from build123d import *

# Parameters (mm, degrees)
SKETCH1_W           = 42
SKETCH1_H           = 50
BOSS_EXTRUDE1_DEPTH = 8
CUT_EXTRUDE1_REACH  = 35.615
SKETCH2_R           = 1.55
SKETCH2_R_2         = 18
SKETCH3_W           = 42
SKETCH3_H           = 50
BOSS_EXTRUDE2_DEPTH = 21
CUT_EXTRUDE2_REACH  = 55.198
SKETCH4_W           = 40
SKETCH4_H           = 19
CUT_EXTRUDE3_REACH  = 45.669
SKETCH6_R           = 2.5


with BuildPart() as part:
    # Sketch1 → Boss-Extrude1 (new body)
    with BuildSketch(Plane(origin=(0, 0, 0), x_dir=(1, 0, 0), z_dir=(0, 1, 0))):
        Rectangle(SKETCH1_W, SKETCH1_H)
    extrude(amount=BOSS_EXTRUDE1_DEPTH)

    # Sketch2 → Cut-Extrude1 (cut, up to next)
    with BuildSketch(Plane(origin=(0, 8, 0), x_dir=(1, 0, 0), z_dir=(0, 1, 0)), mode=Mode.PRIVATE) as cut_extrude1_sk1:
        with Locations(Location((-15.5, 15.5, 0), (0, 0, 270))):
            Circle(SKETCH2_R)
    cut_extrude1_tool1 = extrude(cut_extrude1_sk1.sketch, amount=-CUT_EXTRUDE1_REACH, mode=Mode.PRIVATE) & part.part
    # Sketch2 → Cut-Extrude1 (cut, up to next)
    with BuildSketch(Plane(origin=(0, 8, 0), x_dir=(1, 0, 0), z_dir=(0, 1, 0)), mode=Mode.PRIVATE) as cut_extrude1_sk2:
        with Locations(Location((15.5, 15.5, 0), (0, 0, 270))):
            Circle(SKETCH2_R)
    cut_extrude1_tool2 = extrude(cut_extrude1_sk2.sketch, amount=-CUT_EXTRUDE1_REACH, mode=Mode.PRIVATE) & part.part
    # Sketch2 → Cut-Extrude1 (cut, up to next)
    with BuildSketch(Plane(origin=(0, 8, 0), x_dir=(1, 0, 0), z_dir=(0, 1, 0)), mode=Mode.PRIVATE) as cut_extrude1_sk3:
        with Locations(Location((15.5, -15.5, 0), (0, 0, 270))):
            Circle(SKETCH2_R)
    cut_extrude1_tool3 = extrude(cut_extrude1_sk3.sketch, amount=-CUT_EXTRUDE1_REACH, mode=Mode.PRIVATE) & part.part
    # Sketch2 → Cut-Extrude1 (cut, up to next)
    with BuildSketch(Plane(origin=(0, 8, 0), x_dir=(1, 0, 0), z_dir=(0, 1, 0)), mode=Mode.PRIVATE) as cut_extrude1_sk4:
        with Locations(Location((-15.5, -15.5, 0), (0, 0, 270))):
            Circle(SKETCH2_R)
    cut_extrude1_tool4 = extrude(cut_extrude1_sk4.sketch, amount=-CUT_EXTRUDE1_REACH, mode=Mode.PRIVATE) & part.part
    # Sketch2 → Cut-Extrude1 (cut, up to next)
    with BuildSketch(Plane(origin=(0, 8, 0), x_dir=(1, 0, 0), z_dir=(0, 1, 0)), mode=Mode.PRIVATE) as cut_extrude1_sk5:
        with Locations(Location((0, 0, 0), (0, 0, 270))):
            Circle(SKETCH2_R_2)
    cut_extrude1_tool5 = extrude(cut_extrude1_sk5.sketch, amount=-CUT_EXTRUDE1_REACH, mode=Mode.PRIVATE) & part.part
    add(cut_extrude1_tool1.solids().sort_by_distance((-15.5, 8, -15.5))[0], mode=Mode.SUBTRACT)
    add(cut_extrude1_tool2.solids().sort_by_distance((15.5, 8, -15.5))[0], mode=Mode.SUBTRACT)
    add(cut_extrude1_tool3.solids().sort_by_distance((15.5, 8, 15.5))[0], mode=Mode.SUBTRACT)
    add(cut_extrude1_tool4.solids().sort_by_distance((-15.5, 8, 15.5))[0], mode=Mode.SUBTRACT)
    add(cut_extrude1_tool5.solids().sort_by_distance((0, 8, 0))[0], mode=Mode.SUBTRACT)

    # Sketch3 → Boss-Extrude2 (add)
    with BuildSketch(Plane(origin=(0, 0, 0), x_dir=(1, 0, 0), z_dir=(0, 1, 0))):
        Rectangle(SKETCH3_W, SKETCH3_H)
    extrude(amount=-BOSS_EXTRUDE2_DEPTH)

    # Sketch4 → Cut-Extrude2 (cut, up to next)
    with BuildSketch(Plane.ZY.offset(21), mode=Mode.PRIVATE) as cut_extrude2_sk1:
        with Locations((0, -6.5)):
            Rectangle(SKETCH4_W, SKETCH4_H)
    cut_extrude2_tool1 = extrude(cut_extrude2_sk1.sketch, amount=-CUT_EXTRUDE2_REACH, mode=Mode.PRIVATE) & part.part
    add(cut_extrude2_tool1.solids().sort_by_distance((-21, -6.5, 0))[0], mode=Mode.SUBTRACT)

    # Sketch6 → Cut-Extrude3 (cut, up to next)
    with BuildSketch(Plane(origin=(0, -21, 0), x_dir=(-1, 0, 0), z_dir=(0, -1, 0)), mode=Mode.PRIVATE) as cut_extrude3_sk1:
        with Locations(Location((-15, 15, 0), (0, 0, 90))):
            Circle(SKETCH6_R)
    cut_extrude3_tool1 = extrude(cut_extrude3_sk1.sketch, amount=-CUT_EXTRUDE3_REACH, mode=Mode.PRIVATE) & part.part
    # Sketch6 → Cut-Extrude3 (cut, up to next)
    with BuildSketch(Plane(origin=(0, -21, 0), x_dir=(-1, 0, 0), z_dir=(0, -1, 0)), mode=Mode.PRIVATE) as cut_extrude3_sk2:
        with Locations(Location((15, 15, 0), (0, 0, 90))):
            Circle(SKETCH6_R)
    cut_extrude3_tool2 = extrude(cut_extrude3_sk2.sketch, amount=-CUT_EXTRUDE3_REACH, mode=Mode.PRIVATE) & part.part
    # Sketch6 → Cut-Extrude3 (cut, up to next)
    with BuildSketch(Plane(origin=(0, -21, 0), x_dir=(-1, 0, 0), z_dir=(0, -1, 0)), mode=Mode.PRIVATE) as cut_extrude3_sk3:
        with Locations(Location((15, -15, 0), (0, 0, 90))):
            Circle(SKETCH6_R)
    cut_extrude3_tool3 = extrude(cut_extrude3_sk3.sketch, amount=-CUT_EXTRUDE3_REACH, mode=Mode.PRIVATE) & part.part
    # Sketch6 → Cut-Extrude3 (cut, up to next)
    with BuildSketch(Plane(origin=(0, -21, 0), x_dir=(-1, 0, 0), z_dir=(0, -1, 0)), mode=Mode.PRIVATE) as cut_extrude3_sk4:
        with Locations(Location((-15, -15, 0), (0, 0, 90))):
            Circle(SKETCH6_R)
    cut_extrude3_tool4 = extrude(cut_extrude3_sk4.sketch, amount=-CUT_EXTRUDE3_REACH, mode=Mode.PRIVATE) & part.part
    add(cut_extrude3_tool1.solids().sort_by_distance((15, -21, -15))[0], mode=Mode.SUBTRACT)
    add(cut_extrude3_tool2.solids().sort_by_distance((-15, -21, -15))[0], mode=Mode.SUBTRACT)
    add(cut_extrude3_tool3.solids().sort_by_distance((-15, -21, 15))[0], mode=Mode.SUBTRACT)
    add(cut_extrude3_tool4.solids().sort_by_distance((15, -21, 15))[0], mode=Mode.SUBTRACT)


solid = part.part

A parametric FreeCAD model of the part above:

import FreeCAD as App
import Part
import Sketcher

V = App.Vector


def add_polygon(sketch, points):
    """Adds a closed chain of lines whose ends are joined by coincident constraints."""
    first, n = sketch.GeometryCount, len(points)
    for a, b in zip(points, points[1:] + points[:1]):
        sketch.addGeometry(Part.LineSegment(App.Vector(*a, 0), App.Vector(*b, 0)), False)
    for i in range(n):
        sketch.addConstraint(Sketcher.Constraint("Coincident", first + i, 2, first + (i + 1) % n, 1))

doc = App.newDocument("Part")
body = doc.addObject("PartDesign::Body", "Body")

# Sketch on XZ plane
sketch1 = body.newObject("Sketcher::SketchObject", "Sketch")
sketch1.AttachmentSupport = (doc.getObject("XZ_Plane"), [""])
sketch1.MapMode = "FlatFace"
add_polygon(sketch1, [(-21, -25), (-21, 25), (21, 25), (21, -25)])  # lines 0-3
sketch1.addConstraint(Sketcher.Constraint("Vertical", 0))
sketch1.addConstraint(Sketcher.Constraint("Horizontal", 1))
sketch1.addConstraint(Sketcher.Constraint("Vertical", 2))
sketch1.addConstraint(Sketcher.Constraint("Horizontal", 3))
sketch1.addConstraint(Sketcher.Constraint("Symmetric", 0, 2, 2, 2, -1, 1))
sketch1.addConstraint(Sketcher.Constraint("DistanceX", 1, 1, 1, 2, 42.0))
sketch1.addConstraint(Sketcher.Constraint("DistanceY", 0, 1, 0, 2, 50.0))
pad1 = body.newObject("PartDesign::Pad", "Pad")
pad1.Profile = sketch1
pad1.Length = 8
pad1.Reversed = True

# Sketch on XZ plane
sketch2 = body.newObject("Sketcher::SketchObject", "Sketch001")
sketch2.AttachmentSupport = (doc.getObject("XZ_Plane"), [""])
sketch2.MapMode = "FlatFace"
sketch2.AttachmentOffset = App.Placement(V(0, 0, -8), App.Rotation())
sketch2.addGeometry(Part.Circle(V(-15.5, -15.5, 0), V(0, 0, 1), 1.6), False)
sketch2.addConstraint(Sketcher.Constraint("Diameter", 0, 3.1))
sketch2.addConstraint(Sketcher.Constraint("DistanceX", 0, 3, -1, 1, 15.5))
sketch2.addConstraint(Sketcher.Constraint("DistanceY", 0, 3, -1, 1, 15.5))
pocket1 = body.newObject("PartDesign::Pocket", "Pocket")
pocket1.Profile = sketch2
pocket1.Type = "UpToFirst"
pocket1.Reversed = True

# Sketch on XZ plane
sketch3 = body.newObject("Sketcher::SketchObject", "Sketch002")
sketch3.AttachmentSupport = (doc.getObject("XZ_Plane"), [""])
sketch3.MapMode = "FlatFace"
sketch3.AttachmentOffset = App.Placement(V(0, 0, -8), App.Rotation())
sketch3.addGeometry(Part.Circle(V(15.5, -15.5, 0), V(0, 0, 1), 1.6), False)
sketch3.addConstraint(Sketcher.Constraint("Diameter", 0, 3.1))
sketch3.addConstraint(Sketcher.Constraint("DistanceX", -1, 1, 0, 3, 15.5))
sketch3.addConstraint(Sketcher.Constraint("DistanceY", 0, 3, -1, 1, 15.5))
pocket2 = body.newObject("PartDesign::Pocket", "Pocket001")
pocket2.Profile = sketch3
pocket2.Type = "UpToFirst"
pocket2.Reversed = True

# Sketch on XZ plane
sketch4 = body.newObject("Sketcher::SketchObject", "Sketch003")
sketch4.AttachmentSupport = (doc.getObject("XZ_Plane"), [""])
sketch4.MapMode = "FlatFace"
sketch4.AttachmentOffset = App.Placement(V(0, 0, -8), App.Rotation())
sketch4.addGeometry(Part.Circle(V(15.5, 15.5, 0), V(0, 0, 1), 1.6), False)
sketch4.addConstraint(Sketcher.Constraint("Diameter", 0, 3.1))
sketch4.addConstraint(Sketcher.Constraint("DistanceX", -1, 1, 0, 3, 15.5))
sketch4.addConstraint(Sketcher.Constraint("DistanceY", -1, 1, 0, 3, 15.5))
pocket3 = body.newObject("PartDesign::Pocket", "Pocket002")
pocket3.Profile = sketch4
pocket3.Type = "UpToFirst"
pocket3.Reversed = True

# Sketch on XZ plane
sketch5 = body.newObject("Sketcher::SketchObject", "Sketch004")
sketch5.AttachmentSupport = (doc.getObject("XZ_Plane"), [""])
sketch5.MapMode = "FlatFace"
sketch5.AttachmentOffset = App.Placement(V(0, 0, -8), App.Rotation())
sketch5.addGeometry(Part.Circle(V(-15.5, 15.5, 0), V(0, 0, 1), 1.6), False)
sketch5.addConstraint(Sketcher.Constraint("Diameter", 0, 3.1))
sketch5.addConstraint(Sketcher.Constraint("DistanceX", 0, 3, -1, 1, 15.5))
sketch5.addConstraint(Sketcher.Constraint("DistanceY", -1, 1, 0, 3, 15.5))
pocket4 = body.newObject("PartDesign::Pocket", "Pocket003")
pocket4.Profile = sketch5
pocket4.Type = "UpToFirst"
pocket4.Reversed = True

# Sketch on XZ plane
sketch6 = body.newObject("Sketcher::SketchObject", "Sketch005")
sketch6.AttachmentSupport = (doc.getObject("XZ_Plane"), [""])
sketch6.MapMode = "FlatFace"
sketch6.AttachmentOffset = App.Placement(V(0, 0, -8), App.Rotation())
sketch6.addGeometry(Part.Circle(V(0, 0, 0), V(0, 0, 1), 18), False)
sketch6.addConstraint(Sketcher.Constraint("Coincident", 0, 3, -1, 1))
sketch6.addConstraint(Sketcher.Constraint("Diameter", 0, 36.0))
pocket5 = body.newObject("PartDesign::Pocket", "Pocket004")
pocket5.Profile = sketch6
pocket5.Type = "UpToFirst"
pocket5.Reversed = True

# Sketch on XZ plane
sketch7 = body.newObject("Sketcher::SketchObject", "Sketch006")
sketch7.AttachmentSupport = (doc.getObject("XZ_Plane"), [""])
sketch7.MapMode = "FlatFace"
add_polygon(sketch7, [(-21, -25), (-21, 25), (21, 25), (21, -25)])  # lines 0-3
sketch7.addConstraint(Sketcher.Constraint("Vertical", 0))
sketch7.addConstraint(Sketcher.Constraint("Horizontal", 1))
sketch7.addConstraint(Sketcher.Constraint("Vertical", 2))
sketch7.addConstraint(Sketcher.Constraint("Horizontal", 3))
sketch7.addConstraint(Sketcher.Constraint("Symmetric", 0, 2, 2, 2, -1, 1))
sketch7.addConstraint(Sketcher.Constraint("DistanceX", 1, 1, 1, 2, 42.0))
sketch7.addConstraint(Sketcher.Constraint("DistanceY", 0, 1, 0, 2, 50.0))
pad2 = body.newObject("PartDesign::Pad", "Pad001")
pad2.Profile = sketch7
pad2.Length = 21

# Sketch on YZ plane
sketch8 = body.newObject("Sketcher::SketchObject", "Sketch007")
sketch8.AttachmentSupport = (doc.getObject("YZ_Plane"), [""])
sketch8.MapMode = "FlatFace"
sketch8.AttachmentOffset = App.Placement(V(0, 0, -21), App.Rotation())
add_polygon(sketch8, [(3, -20), (-16, -20), (-16, 20), (3, 20)])  # lines 0-3
sketch8.addConstraint(Sketcher.Constraint("Horizontal", 0))
sketch8.addConstraint(Sketcher.Constraint("Vertical", 1))
sketch8.addConstraint(Sketcher.Constraint("Horizontal", 2))
sketch8.addConstraint(Sketcher.Constraint("Vertical", 3))
sketch8.addConstraint(Sketcher.Constraint("DistanceX", 0, 2, 0, 1, 19.0))
sketch8.addConstraint(Sketcher.Constraint("DistanceY", 1, 1, 1, 2, 40.0))
sketch8.addConstraint(Sketcher.Constraint("DistanceX", 0, 2, -1, 1, 16.0))
sketch8.addConstraint(Sketcher.Constraint("DistanceY", 0, 2, -1, 1, 20.0))
pocket6 = body.newObject("PartDesign::Pocket", "Pocket005")
pocket6.Profile = sketch8
pocket6.Type = "UpToFirst"
pocket6.Reversed = True

# Sketch on XZ plane
sketch9 = body.newObject("Sketcher::SketchObject", "Sketch008")
sketch9.AttachmentSupport = (doc.getObject("XZ_Plane"), [""])
sketch9.MapMode = "FlatFace"
sketch9.AttachmentOffset = App.Placement(V(0, 0, 21), App.Rotation())
sketch9.addGeometry(Part.Circle(V(15, -15, 0), V(0, 0, 1), 2.5), False)
sketch9.addConstraint(Sketcher.Constraint("Diameter", 0, 5.0))
sketch9.addConstraint(Sketcher.Constraint("DistanceX", -1, 1, 0, 3, 15.0))
sketch9.addConstraint(Sketcher.Constraint("DistanceY", 0, 3, -1, 1, 15.0))
pocket7 = body.newObject("PartDesign::Pocket", "Pocket006")
pocket7.Profile = sketch9
pocket7.Type = "UpToFirst"

# Sketch on XZ plane
sketch10 = body.newObject("Sketcher::SketchObject", "Sketch009")
sketch10.AttachmentSupport = (doc.getObject("XZ_Plane"), [""])
sketch10.MapMode = "FlatFace"
sketch10.AttachmentOffset = App.Placement(V(0, 0, 21), App.Rotation())
sketch10.addGeometry(Part.Circle(V(-15, -15, 0), V(0, 0, 1), 2.5), False)
sketch10.addConstraint(Sketcher.Constraint("Diameter", 0, 5.0))
sketch10.addConstraint(Sketcher.Constraint("DistanceX", 0, 3, -1, 1, 15.0))
sketch10.addConstraint(Sketcher.Constraint("DistanceY", 0, 3, -1, 1, 15.0))
pocket8 = body.newObject("PartDesign::Pocket", "Pocket007")
pocket8.Profile = sketch10
pocket8.Type = "UpToFirst"

# Sketch on XZ plane
sketch11 = body.newObject("Sketcher::SketchObject", "Sketch010")
sketch11.AttachmentSupport = (doc.getObject("XZ_Plane"), [""])
sketch11.MapMode = "FlatFace"
sketch11.AttachmentOffset = App.Placement(V(0, 0, 21), App.Rotation())
sketch11.addGeometry(Part.Circle(V(-15, 15, 0), V(0, 0, 1), 2.5), False)
sketch11.addConstraint(Sketcher.Constraint("Diameter", 0, 5.0))
sketch11.addConstraint(Sketcher.Constraint("DistanceX", 0, 3, -1, 1, 15.0))
sketch11.addConstraint(Sketcher.Constraint("DistanceY", -1, 1, 0, 3, 15.0))
pocket9 = body.newObject("PartDesign::Pocket", "Pocket008")
pocket9.Profile = sketch11
pocket9.Type = "UpToFirst"

# Sketch on XZ plane
sketch12 = body.newObject("Sketcher::SketchObject", "Sketch011")
sketch12.AttachmentSupport = (doc.getObject("XZ_Plane"), [""])
sketch12.MapMode = "FlatFace"
sketch12.AttachmentOffset = App.Placement(V(0, 0, 21), App.Rotation())
sketch12.addGeometry(Part.Circle(V(15, 15, 0), V(0, 0, 1), 2.5), False)
sketch12.addConstraint(Sketcher.Constraint("Diameter", 0, 5.0))
sketch12.addConstraint(Sketcher.Constraint("DistanceX", -1, 1, 0, 3, 15.0))
sketch12.addConstraint(Sketcher.Constraint("DistanceY", -1, 1, 0, 3, 15.0))
pocket10 = body.newObject("PartDesign::Pocket", "Pocket009")
pocket10.Profile = sketch12
pocket10.Type = "UpToFirst"

doc.recompute()
